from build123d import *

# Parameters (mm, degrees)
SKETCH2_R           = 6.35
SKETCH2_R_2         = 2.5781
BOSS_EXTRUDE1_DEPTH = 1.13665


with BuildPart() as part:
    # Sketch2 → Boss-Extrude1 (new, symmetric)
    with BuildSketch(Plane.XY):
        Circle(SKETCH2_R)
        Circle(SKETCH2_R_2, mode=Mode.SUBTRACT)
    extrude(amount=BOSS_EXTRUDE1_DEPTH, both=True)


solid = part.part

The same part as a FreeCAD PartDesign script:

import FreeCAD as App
import Part
import Sketcher

V = App.Vector
Q = App.Units.Quantity

doc = App.newDocument("Part")
body = doc.addObject("PartDesign::Body", "Body")

sketch1 = body.newObject("Sketcher::SketchObject", "Sketch")
sketch1.AttachmentSupport = (doc.getObject("XY_Plane"), [""])
sketch1.MapMode = "FlatFace"
sketch1.addGeometry(Part.Circle(V(0, 0, 0), V(0, 0, 1), 6.3), False)
sketch1.addGeometry(Part.Circle(V(0, 0, 0), V(0, 0, 1), 2.6), False)
sketch1.addConstraint(Sketcher.Constraint("Coincident", 0, 3, -1, 1))
sketch1.addConstraint(Sketcher.Constraint("Coincident", 1, 3, -1, 1))
sketch1.addConstraint(Sketcher.Constraint("Diameter", 0, Q("0.5 in")))
sketch1.addConstraint(Sketcher.Constraint("Diameter", 1, Q("0.203 in")))
pad1 = body.newObject("PartDesign::Pad", "Pad")
pad1.Profile = sketch1
pad1.Length = Q("0.0895 in")
pad1.Midplane = True

doc.recompute()
